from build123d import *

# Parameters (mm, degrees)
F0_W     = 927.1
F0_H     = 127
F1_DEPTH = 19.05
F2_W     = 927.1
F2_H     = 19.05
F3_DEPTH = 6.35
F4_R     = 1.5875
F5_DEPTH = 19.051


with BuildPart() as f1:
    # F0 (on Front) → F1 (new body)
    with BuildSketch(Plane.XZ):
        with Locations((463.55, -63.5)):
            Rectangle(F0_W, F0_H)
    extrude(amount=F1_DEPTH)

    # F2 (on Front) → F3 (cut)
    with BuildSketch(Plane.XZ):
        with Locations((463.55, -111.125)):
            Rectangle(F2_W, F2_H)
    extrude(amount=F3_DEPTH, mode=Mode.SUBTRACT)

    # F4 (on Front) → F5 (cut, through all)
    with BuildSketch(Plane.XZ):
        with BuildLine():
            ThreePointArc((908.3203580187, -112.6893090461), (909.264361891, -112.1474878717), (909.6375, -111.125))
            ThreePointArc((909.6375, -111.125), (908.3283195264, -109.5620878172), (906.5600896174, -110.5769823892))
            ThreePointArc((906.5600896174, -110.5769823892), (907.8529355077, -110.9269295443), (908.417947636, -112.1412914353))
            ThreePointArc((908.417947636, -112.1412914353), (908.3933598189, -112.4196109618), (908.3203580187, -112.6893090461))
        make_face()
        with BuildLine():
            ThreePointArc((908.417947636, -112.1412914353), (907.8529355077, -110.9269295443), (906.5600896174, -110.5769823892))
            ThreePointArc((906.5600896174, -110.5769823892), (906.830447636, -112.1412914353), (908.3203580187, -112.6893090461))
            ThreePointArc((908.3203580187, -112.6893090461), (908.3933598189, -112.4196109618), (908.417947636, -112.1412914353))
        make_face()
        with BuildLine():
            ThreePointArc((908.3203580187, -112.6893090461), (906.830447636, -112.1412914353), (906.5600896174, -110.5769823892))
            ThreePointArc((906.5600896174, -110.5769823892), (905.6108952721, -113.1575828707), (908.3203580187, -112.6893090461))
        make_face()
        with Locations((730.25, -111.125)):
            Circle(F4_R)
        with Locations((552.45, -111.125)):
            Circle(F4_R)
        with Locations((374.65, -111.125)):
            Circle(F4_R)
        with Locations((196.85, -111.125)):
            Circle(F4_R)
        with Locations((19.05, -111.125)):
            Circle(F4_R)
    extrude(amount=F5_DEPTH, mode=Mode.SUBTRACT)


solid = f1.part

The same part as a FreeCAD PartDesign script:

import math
import FreeCAD as App
import Part
import Sketcher
from FreeCAD import Vector
Q = App.Units.Quantity

doc = App.newDocument("Part")
body = doc.addObject("PartDesign::Body", "Body")

sketch1 = body.newObject("Sketcher::SketchObject", "Sketch")
sketch1.AttachmentSupport = (doc.getObject("XZ_Plane"), [""])
sketch1.MapMode = "FlatFace"
sketch1.addGeometry([
    Part.LineSegment(Vector(0, 0, 0), Vector(0, -127, 0)),
    Part.LineSegment(Vector(0, -127, 0), Vector(927.1, -127, 0)),
    Part.LineSegment(Vector(927.1, -127, 0), Vector(927.1, 0, 0)),
    Part.LineSegment(Vector(927.1, 0, 0), Vector(0, 0, 0)),
], False)
sketch1.addConstraint([
    Sketcher.Constraint("Coincident", 0, 2, 1, 1),
    Sketcher.Constraint("Coincident", 1, 2, 2, 1),
    Sketcher.Constraint("Coincident", 2, 2, 3, 1),
    Sketcher.Constraint("Coincident", 3, 2, 0, 1),
    Sketcher.Constraint("Vertical", 0),
    Sketcher.Constraint("Horizontal", 1),
    Sketcher.Constraint("Vertical", 2),
    Sketcher.Constraint("Horizontal", 3),
    Sketcher.Constraint("Coincident", 3, 2, -1, 1),
    Sketcher.Constraint("DistanceY", 0, 2, 0, 1, Q("5 in")),
    Sketcher.Constraint("DistanceX", 1, 1, 1, 2, Q("36.5 in")),
])
pad1 = body.newObject("PartDesign::Pad", "Pad")
pad1.Profile = sketch1
pad1.Length = Q("0.75 in")

sketch2 = body.newObject("Sketcher::SketchObject", "Sketch001")
sketch2.AttachmentSupport = (doc.getObject("XZ_Plane"), [""])
sketch2.MapMode = "FlatFace"
sketch2.addGeometry([
    Part.LineSegment(Vector(0, -101.6, 0), Vector(0, -120.65, 0)),
    Part.LineSegment(Vector(0, -120.65, 0), Vector(927.1, -120.65, 0)),
    Part.LineSegment(Vector(927.1, -120.65, 0), Vector(927.1, -101.6, 0)),
    Part.LineSegment(Vector(927.1, -101.6, 0), Vector(0, -101.6, 0)),
], False)
sketch2.addConstraint([
    Sketcher.Constraint("Coincident", 0, 2, 1, 1),
    Sketcher.Constraint("Coincident", 1, 2, 2, 1),
    Sketcher.Constraint("Coincident", 2, 2, 3, 1),
    Sketcher.Constraint("Coincident", 3, 2, 0, 1),
    Sketcher.Constraint("Vertical", 0),
    Sketcher.Constraint("Horizontal", 1),
    Sketcher.Constraint("Vertical", 2),
    Sketcher.Constraint("Horizontal", 3),
    Sketcher.Constraint("PointOnObject", 0, 2, -2),
    Sketcher.Constraint("DistanceX", 1, 1, 1, 2, Q("36.5 in")),
    Sketcher.Constraint("DistanceY", 2, 2, -1, 1, Q("4 in")),
    Sketcher.Constraint("DistanceY", 0, 2, 0, 1, Q("0.75 in")),
])
pocket1 = body.newObject("PartDesign::Pocket", "Pocket")
pocket1.Profile = sketch2
pocket1.Length = Q("0.25 in")
pocket1.Reversed = True

sketch3 = body.newObject("Sketcher::SketchObject", "Sketch002")
sketch3.AttachmentSupport = (doc.getObject("XZ_Plane"), [""])
sketch3.MapMode = "FlatFace"
sketch3.addGeometry([
    Part.ArcOfCircle(Part.Circle(Vector(908.05, -111.125, 0), Vector(0, 0, 1), 1.5875), math.radians(-80.19449), math.radians(0)),
    Part.ArcOfCircle(Part.Circle(Vector(908.05, -111.125, 0), Vector(0, 0, 1), 1.5875), math.radians(0), math.radians(159.80551)),
    Part.ArcOfCircle(Part.Circle(Vector(906.830448, -112.141291, 0), Vector(0, 0, 1), 1.5875), math.radians(99.80551), math.radians(339.80551)),
    Part.Circle(Vector(730.25, -111.125, 0), Vector(0, 0, 1), 1.5875),
    Part.Circle(Vector(552.45, -111.125, 0), Vector(0, 0, 1), 1.5875),
    Part.Circle(Vector(374.65, -111.125, 0), Vector(0, 0, 1), 1.5875),
    Part.Circle(Vector(196.85, -111.125, 0), Vector(0, 0, 1), 1.5875),
    Part.Circle(Vector(19.05, -111.125, 0), Vector(0, 0, 1), 1.5875),
], False)
sketch3.addConstraint([
    Sketcher.Constraint("Tangent", 0, 2, 1, 1),
    Sketcher.Constraint("Coincident", 1, 2, 2, 1),
    Sketcher.Constraint("Coincident", 2, 2, 0, 1),
    Sketcher.Constraint("Equal", 0, 1),
    Sketcher.Constraint("Equal", 1, 2),
    Sketcher.Constraint("Equal", 2, 3),
    Sketcher.Constraint("Equal", 3, 4),
    Sketcher.Constraint("Equal", 4, 5),
    Sketcher.Constraint("Equal", 5, 6),
    Sketcher.Constraint("Equal", 6, 7),
    Sketcher.Constraint("Horizontal", 1, 3, 3, 3),
    Sketcher.Constraint("Horizontal", 3, 3, 4, 3),
    Sketcher.Constraint("Horizontal", 4, 3, 5, 3),
    Sketcher.Constraint("Horizontal", 5, 3, 6, 3),
    Sketcher.Constraint("Horizontal", 6, 3, 7, 3),
    Sketcher.Constraint("Horizontal", 7, 3, 0, 2),
    Sketcher.Constraint("Diameter", 3, Q("0.125 in")),
    Sketcher.Constraint("DistanceX", 3, 3, 0, 3, Q("7 in")),
    Sketcher.Constraint("DistanceX", 4, 3, 3, 3, Q("7 in")),
    Sketcher.Constraint("DistanceX", 5, 3, 4, 3, Q("7 in")),
    Sketcher.Constraint("DistanceX", 6, 3, 5, 3, Q("7 in")),
    Sketcher.Constraint("DistanceX", 7, 3, 6, 3, Q("7 in")),
    Sketcher.Constraint("DistanceX", -1, 1, 0, 3, Q("35.75 in")),
    Sketcher.Constraint("DistanceY", 0, 3, -1, 1, Q("4.375 in")),
    Sketcher.Constraint("DistanceY", 2, 3, -1, 1, 112.141291),
    Sketcher.Constraint("DistanceX", -1, 1, 1, 2, 906.56009),
])
pocket2 = body.newObject("PartDesign::Pocket", "Pocket001")
pocket2.Profile = sketch3
pocket2.Type = "ThroughAll"
pocket2.Reversed = True

doc.recompute()
